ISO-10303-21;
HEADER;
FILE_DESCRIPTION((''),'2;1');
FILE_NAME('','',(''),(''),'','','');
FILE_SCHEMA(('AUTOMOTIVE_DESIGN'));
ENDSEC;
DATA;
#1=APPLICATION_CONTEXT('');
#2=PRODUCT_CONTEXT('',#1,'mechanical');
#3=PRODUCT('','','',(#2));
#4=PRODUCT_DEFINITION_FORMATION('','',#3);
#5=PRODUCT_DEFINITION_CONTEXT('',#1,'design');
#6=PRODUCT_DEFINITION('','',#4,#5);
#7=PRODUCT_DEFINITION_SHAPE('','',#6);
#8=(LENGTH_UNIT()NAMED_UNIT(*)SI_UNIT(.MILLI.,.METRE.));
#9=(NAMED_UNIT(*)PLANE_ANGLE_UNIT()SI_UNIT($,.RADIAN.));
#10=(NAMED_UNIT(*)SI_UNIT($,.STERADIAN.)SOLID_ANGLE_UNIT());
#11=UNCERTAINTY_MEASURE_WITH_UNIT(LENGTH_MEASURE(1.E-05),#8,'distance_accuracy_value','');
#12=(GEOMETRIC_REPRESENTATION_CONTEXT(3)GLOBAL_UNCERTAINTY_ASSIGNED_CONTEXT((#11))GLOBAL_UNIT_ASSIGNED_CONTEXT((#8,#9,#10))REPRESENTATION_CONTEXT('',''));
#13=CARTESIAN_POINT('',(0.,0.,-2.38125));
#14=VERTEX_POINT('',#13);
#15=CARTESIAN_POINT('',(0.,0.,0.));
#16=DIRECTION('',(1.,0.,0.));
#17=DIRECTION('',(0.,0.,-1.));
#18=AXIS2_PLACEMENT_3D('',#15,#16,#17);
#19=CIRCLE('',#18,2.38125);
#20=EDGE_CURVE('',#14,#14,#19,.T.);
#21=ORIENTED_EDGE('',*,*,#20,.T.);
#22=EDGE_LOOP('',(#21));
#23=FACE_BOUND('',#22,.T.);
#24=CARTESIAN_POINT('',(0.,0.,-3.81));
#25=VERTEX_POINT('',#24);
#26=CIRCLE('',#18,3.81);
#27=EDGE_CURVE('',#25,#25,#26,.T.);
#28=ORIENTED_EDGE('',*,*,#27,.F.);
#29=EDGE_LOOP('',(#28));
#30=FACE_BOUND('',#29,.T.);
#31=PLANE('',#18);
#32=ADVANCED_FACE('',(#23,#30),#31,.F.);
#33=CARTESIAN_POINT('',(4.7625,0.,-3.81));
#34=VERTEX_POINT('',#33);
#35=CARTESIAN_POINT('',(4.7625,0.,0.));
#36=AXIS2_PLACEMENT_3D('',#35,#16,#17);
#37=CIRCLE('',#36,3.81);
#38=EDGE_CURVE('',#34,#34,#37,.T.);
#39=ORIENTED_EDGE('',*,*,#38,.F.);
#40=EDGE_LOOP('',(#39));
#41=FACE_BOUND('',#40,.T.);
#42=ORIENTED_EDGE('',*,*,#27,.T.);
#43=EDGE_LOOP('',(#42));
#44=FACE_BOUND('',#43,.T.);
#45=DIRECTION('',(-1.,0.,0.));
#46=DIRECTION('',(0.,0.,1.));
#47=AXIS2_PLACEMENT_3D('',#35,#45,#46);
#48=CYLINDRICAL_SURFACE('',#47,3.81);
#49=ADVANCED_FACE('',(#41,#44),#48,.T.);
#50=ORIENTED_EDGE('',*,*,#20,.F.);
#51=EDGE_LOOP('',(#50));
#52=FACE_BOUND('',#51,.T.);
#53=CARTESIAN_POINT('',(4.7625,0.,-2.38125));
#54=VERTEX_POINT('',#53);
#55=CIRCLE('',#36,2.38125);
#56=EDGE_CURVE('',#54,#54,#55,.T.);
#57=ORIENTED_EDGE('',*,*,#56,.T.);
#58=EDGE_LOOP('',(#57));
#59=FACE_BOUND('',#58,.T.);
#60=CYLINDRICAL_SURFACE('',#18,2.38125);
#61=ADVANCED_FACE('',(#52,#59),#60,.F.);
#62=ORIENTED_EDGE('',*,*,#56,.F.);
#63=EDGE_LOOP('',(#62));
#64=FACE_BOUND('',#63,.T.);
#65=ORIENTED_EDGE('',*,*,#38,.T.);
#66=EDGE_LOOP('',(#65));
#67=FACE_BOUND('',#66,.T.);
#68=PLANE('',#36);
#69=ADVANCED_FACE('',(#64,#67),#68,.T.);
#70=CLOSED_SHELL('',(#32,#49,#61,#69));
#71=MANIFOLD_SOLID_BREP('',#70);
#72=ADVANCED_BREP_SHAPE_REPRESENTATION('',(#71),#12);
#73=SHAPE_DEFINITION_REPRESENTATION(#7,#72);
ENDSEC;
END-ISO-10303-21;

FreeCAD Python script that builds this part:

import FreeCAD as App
import Part
import Sketcher
from FreeCAD import Vector
Q = App.Units.Quantity

doc = App.newDocument("Part")
body = doc.addObject("PartDesign::Body", "Body")

# Sketch on YZ plane
sketch1 = doc.addObject("Sketcher::SketchObject", "Sketch")
body.addObject(sketch1)
sketch1.AttachmentSupport = (doc.YZ_Plane, [""])
sketch1.MapMode = "FlatFace"
sketch1.addGeometry(Part.Circle(Vector(0, 0, 0), Vector(0, 0, 1), 3.8), False)
sketch1.addConstraint([
    Sketcher.Constraint("Coincident", 0, 3, -1, 1),
    Sketcher.Constraint("Diameter", 0, Q("0.3 in")),
])
pad1 = doc.addObject("PartDesign::Pad", "Pad")
body.addObject(pad1)
pad1.Profile = sketch1
pad1.Length = Q("0.1875 in")

# Sketch on YZ plane
sketch2 = doc.addObject("Sketcher::SketchObject", "Sketch001")
body.addObject(sketch2)
sketch2.AttachmentSupport = (doc.YZ_Plane, [""])
sketch2.MapMode = "FlatFace"
sketch2.AttachmentOffset = App.Placement(Vector(0, 0, 0.1875 * 25.4), App.Rotation())
sketch2.addGeometry(Part.Circle(Vector(0, 0, 0), Vector(0, 0, 1), 2.4), False)
sketch2.addConstraint([
    Sketcher.Constraint("Coincident", 0, 3, -1, 1),
    Sketcher.Constraint("Diameter", 0, Q("0.1875 in")),
])
pocket1 = doc.addObject("PartDesign::Pocket", "Pocket")
body.addObject(pocket1)
pocket1.Profile = sketch2
pocket1.Type = "ThroughAll"

doc.recompute()
